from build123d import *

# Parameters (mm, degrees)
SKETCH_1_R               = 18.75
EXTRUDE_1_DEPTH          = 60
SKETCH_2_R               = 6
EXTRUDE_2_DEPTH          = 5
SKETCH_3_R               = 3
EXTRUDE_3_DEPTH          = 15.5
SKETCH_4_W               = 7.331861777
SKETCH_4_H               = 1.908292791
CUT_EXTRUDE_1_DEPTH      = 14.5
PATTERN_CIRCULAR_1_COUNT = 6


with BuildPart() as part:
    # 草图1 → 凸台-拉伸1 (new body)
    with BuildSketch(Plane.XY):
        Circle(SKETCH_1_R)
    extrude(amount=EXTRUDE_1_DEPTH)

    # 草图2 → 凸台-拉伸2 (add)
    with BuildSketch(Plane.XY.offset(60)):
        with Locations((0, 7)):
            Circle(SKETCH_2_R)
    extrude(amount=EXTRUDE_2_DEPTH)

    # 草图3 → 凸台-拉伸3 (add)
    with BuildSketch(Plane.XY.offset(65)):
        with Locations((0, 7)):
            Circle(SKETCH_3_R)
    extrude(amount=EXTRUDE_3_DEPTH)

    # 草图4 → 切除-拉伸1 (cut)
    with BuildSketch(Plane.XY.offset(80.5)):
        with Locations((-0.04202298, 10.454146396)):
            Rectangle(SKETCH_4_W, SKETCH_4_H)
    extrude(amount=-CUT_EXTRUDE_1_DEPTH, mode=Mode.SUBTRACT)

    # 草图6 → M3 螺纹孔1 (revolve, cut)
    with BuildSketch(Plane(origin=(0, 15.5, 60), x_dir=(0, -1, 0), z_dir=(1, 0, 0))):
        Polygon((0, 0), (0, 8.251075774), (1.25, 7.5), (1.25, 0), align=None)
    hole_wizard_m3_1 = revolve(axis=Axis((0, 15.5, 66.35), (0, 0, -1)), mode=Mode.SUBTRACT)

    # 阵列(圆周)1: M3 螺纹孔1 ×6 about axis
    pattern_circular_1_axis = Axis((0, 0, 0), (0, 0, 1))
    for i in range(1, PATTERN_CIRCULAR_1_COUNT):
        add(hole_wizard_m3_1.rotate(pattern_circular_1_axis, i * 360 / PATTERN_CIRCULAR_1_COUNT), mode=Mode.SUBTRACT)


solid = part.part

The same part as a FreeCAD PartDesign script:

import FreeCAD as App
import Part
import Sketcher

V = App.Vector
Q = App.Units.Quantity


def add_polygon(sketch, points):
    """Adds a closed chain of lines whose ends are joined by coincident constraints."""
    first, n = sketch.GeometryCount, len(points)
    for a, b in zip(points, points[1:] + points[:1]):
        sketch.addGeometry(Part.LineSegment(App.Vector(*a, 0), App.Vector(*b, 0)), False)
    for i in range(n):
        sketch.addConstraint(Sketcher.Constraint("Coincident", first + i, 2, first + (i + 1) % n, 1))

doc = App.newDocument("Part")
params = doc.addObject("Spreadsheet::Sheet", "Params")
for row, (alias, value) in enumerate([
    ("sketch1_diameter", "37.5 mm"),
    ("pad1_length", "60 mm"),
    ("sketch2_diameter", "12 mm"),
    ("pad2_length", "5 mm"),
    ("sketch3_diameter", "6 mm"),
    ("pad3_length", "15.5 mm"),
    ("pocket1_length", "14.5 mm"),
    ("sketch5_height", "7.5 mm"),
    ("sketch5_width", "1.25 mm"),
    ("groove_angle", "360 deg"),
], start=1):
    params.set(f"A{row}", alias)
    params.set(f"B{row}", "=" + value)
    params.setAlias(f"B{row}", alias)

body = doc.addObject("PartDesign::Body", "Body")

# Sketch on XY plane
sketch1 = body.newObject("Sketcher::SketchObject", "Sketch")
sketch1.AttachmentSupport = (doc.getObject("XY_Plane"), [""])
sketch1.MapMode = "FlatFace"
sketch1.addGeometry(Part.Circle(V(0, 0, 0), V(0, 0, 1), 19), False)
sketch1.addConstraint(Sketcher.Constraint("Coincident", 0, 3, -1, 1))
sketch1.addConstraint(Sketcher.Constraint("Diameter", 0, 37.5))
sketch1.setExpression("Constraints[1]", "Params.sketch1_diameter")
pad1 = body.newObject("PartDesign::Pad", "Pad")
pad1.Profile = sketch1
pad1.setExpression("Length", "Params.pad1_length")

# Sketch on XY plane
sketch2 = body.newObject("Sketcher::SketchObject", "Sketch001")
sketch2.AttachmentSupport = (doc.getObject("XY_Plane"), [""])
sketch2.MapMode = "FlatFace"
sketch2.AttachmentOffset = App.Placement(V(0, 0, 60), App.Rotation())
sketch2.addGeometry(Part.Circle(V(0, 7, 0), V(0, 0, 1), 6), False)
sketch2.addConstraint(Sketcher.Constraint("PointOnObject", 0, 3, -2))
sketch2.addConstraint(Sketcher.Constraint("Diameter", 0, 12.0))
sketch2.addConstraint(Sketcher.Constraint("DistanceY", -1, 1, 0, 3, 7.0))
sketch2.setExpression("Constraints[1]", "Params.sketch2_diameter")
pad2 = body.newObject("PartDesign::Pad", "Pad001")
pad2.Profile = sketch2
pad2.setExpression("Length", "Params.pad2_length")

# Sketch on XY plane
sketch3 = body.newObject("Sketcher::SketchObject", "Sketch002")
sketch3.AttachmentSupport = (doc.getObject("XY_Plane"), [""])
sketch3.MapMode = "FlatFace"
sketch3.AttachmentOffset = App.Placement(V(0, 0, 65), App.Rotation())
sketch3.addGeometry(Part.Circle(V(0, 7, 0), V(0, 0, 1), 3), False)
sketch3.addConstraint(Sketcher.Constraint("PointOnObject", 0, 3, -2))
sketch3.addConstraint(Sketcher.Constraint("Diameter", 0, 6.0))
sketch3.addConstraint(Sketcher.Constraint("DistanceY", -1, 1, 0, 3, 7.0))
sketch3.setExpression("Constraints[1]", "Params.sketch3_diameter")
pad3 = body.newObject("PartDesign::Pad", "Pad002")
pad3.Profile = sketch3
pad3.setExpression("Length", "Params.pad3_length")

# Sketch on XY plane
sketch4 = body.newObject("Sketcher::SketchObject", "Sketch003")
sketch4.AttachmentSupport = (doc.getObject("XY_Plane"), [""])
sketch4.MapMode = "FlatFace"
sketch4.AttachmentOffset = App.Placement(V(0, 0, 80.5), App.Rotation())
add_polygon(sketch4, [(-3.7, 11.4), (-3.7, 9.5), (3.6, 9.5), (3.6, 11.4)])  # lines 0-3
sketch4.addConstraint(Sketcher.Constraint("Vertical", 0))
sketch4.addConstraint(Sketcher.Constraint("Horizontal", 1))
sketch4.addConstraint(Sketcher.Constraint("Vertical", 2))
sketch4.addConstraint(Sketcher.Constraint("Horizontal", 3))
sketch4.addConstraint(Sketcher.Constraint("DistanceY", -1, 1, 0, 2, 9.5))
sketch4.addConstraint(Sketcher.Constraint("DistanceX", 1, 1, 1, 2, 7.331862))
sketch4.addConstraint(Sketcher.Constraint("DistanceY", 0, 2, 0, 1, 1.908293))
sketch4.addConstraint(Sketcher.Constraint("DistanceX", 0, 2, -1, 1, 3.707954))
pocket1 = body.newObject("PartDesign::Pocket", "Pocket")
pocket1.Profile = sketch4
pocket1.setExpression("Length", "Params.pocket1_length")

# Sketch on YZ plane
sketch5 = body.newObject("Sketcher::SketchObject", "Sketch004")
sketch5.AttachmentSupport = (doc.getObject("YZ_Plane"), [""])
sketch5.MapMode = "FlatFace"
add_polygon(sketch5, [(15.5, 51.7), (15.5, 60), (14.2, 60), (14.2, 52.5)])  # lines 0-3
sketch5.addGeometry(Part.LineSegment(V(15.5, 60, 0), V(15.5, 51.7, 0)), True)  # axis
sketch5.addConstraint(Sketcher.Constraint("Vertical", 0))
sketch5.addConstraint(Sketcher.Constraint("Horizontal", 1))
sketch5.addConstraint(Sketcher.Constraint("Vertical", 2))
sketch5.addConstraint(Sketcher.Constraint("Vertical", 4))
sketch5.addConstraint(Sketcher.Constraint("Coincident", 4, 1, 0, 2))
sketch5.addConstraint(Sketcher.Constraint("Equal", 0, 4))
sketch5.addConstraint(Sketcher.Constraint("Angle", 3, Q("-31 deg")))
sketch5.addConstraint(Sketcher.Constraint("DistanceY", 2, 2, 2, 1, 7.5))
sketch5.addConstraint(Sketcher.Constraint("DistanceY", -1, 1, 0, 2, 60.0))
sketch5.addConstraint(Sketcher.Constraint("DistanceX", 1, 2, 1, 1, 1.25))
sketch5.addConstraint(Sketcher.Constraint("DistanceX", -1, 1, 0, 2, 15.5))
sketch5.setExpression("Constraints[11]", "Params.sketch5_height")
sketch5.setExpression("Constraints[13]", "Params.sketch5_width")
groove = body.newObject("PartDesign::Groove", "Groove")
groove.Profile = sketch5
groove.ReferenceAxis = (sketch5, ["Axis0"])
groove.setExpression("Angle", "Params.groove_angle")
doc.recompute()

polarpattern = body.newObject("PartDesign::PolarPattern", "PolarPattern")
polarpattern.Originals = [groove]
polarpattern.Axis = (doc.getObject("Z_Axis"), [""])
polarpattern.Angle = 360
polarpattern.Occurrences = 6
body.Tip = polarpattern

doc.recompute()
